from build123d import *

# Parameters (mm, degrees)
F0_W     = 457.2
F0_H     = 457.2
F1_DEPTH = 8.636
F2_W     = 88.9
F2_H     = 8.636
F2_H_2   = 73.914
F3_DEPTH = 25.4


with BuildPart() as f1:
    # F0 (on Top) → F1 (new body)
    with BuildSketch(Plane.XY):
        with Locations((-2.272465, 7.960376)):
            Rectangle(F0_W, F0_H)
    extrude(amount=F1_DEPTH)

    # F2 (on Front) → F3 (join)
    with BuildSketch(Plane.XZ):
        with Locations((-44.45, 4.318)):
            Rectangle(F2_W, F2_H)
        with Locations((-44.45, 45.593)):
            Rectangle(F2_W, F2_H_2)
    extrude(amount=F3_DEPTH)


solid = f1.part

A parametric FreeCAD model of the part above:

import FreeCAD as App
import Part
import Sketcher

V = App.Vector
Q = App.Units.Quantity


def add_polygon(sketch, points):
    """Adds a closed chain of lines whose ends are joined by coincident constraints."""
    first, n = sketch.GeometryCount, len(points)
    for a, b in zip(points, points[1:] + points[:1]):
        sketch.addGeometry(Part.LineSegment(App.Vector(*a, 0), App.Vector(*b, 0)), False)
    for i in range(n):
        sketch.addConstraint(Sketcher.Constraint("Coincident", first + i, 2, first + (i + 1) % n, 1))

doc = App.newDocument("Part")
body = doc.addObject("PartDesign::Body", "Body")

# Sketch on XY plane
sketch1 = body.newObject("Sketcher::SketchObject", "Sketch")
sketch1.AttachmentSupport = (doc.getObject("XY_Plane"), [""])
sketch1.MapMode = "FlatFace"
add_polygon(sketch1, [(-231, 237), (-231, -221), (226, -221), (226, 237)])  # lines 0-3
sketch1.addConstraint(Sketcher.Constraint("Vertical", 0))
sketch1.addConstraint(Sketcher.Constraint("Horizontal", 1))
sketch1.addConstraint(Sketcher.Constraint("Vertical", 2))
sketch1.addConstraint(Sketcher.Constraint("Horizontal", 3))
sketch1.addConstraint(Sketcher.Constraint("Equal", 3, 0))
sketch1.addConstraint(Sketcher.Constraint("DistanceX", 1, 1, 1, 2, Q("18 in")))
sketch1.addConstraint(Sketcher.Constraint("DistanceX", 0, 2, -1, 1, 230.872465))
sketch1.addConstraint(Sketcher.Constraint("DistanceY", 0, 2, -1, 1, 220.639624))
pad1 = body.newObject("PartDesign::Pad", "Pad")
pad1.Profile = sketch1
pad1.Length = Q("0.34 in")

# Sketch on XZ plane
sketch2 = body.newObject("Sketcher::SketchObject", "Sketch001")
sketch2.AttachmentSupport = (doc.getObject("XZ_Plane"), [""])
sketch2.MapMode = "FlatFace"
add_polygon(sketch2, [(-89, 0), (0, 0), (0, 83), (-89, 83)])  # lines 0-3
sketch2.addConstraint(Sketcher.Constraint("Horizontal", 0))
sketch2.addConstraint(Sketcher.Constraint("Vertical", 1))
sketch2.addConstraint(Sketcher.Constraint("Horizontal", 2))
sketch2.addConstraint(Sketcher.Constraint("Vertical", 3))
sketch2.addConstraint(Sketcher.Constraint("Coincident", 0, 2, -1, 1))
sketch2.addConstraint(Sketcher.Constraint("DistanceX", 0, 1, 0, 2, Q("3.5 in")))
sketch2.addConstraint(Sketcher.Constraint("DistanceY", 1, 1, 1, 2, Q("3.25 in")))
pad2 = body.newObject("PartDesign::Pad", "Pad001")
pad2.Profile = sketch2
pad2.Length = Q("1 in")

doc.recompute()
